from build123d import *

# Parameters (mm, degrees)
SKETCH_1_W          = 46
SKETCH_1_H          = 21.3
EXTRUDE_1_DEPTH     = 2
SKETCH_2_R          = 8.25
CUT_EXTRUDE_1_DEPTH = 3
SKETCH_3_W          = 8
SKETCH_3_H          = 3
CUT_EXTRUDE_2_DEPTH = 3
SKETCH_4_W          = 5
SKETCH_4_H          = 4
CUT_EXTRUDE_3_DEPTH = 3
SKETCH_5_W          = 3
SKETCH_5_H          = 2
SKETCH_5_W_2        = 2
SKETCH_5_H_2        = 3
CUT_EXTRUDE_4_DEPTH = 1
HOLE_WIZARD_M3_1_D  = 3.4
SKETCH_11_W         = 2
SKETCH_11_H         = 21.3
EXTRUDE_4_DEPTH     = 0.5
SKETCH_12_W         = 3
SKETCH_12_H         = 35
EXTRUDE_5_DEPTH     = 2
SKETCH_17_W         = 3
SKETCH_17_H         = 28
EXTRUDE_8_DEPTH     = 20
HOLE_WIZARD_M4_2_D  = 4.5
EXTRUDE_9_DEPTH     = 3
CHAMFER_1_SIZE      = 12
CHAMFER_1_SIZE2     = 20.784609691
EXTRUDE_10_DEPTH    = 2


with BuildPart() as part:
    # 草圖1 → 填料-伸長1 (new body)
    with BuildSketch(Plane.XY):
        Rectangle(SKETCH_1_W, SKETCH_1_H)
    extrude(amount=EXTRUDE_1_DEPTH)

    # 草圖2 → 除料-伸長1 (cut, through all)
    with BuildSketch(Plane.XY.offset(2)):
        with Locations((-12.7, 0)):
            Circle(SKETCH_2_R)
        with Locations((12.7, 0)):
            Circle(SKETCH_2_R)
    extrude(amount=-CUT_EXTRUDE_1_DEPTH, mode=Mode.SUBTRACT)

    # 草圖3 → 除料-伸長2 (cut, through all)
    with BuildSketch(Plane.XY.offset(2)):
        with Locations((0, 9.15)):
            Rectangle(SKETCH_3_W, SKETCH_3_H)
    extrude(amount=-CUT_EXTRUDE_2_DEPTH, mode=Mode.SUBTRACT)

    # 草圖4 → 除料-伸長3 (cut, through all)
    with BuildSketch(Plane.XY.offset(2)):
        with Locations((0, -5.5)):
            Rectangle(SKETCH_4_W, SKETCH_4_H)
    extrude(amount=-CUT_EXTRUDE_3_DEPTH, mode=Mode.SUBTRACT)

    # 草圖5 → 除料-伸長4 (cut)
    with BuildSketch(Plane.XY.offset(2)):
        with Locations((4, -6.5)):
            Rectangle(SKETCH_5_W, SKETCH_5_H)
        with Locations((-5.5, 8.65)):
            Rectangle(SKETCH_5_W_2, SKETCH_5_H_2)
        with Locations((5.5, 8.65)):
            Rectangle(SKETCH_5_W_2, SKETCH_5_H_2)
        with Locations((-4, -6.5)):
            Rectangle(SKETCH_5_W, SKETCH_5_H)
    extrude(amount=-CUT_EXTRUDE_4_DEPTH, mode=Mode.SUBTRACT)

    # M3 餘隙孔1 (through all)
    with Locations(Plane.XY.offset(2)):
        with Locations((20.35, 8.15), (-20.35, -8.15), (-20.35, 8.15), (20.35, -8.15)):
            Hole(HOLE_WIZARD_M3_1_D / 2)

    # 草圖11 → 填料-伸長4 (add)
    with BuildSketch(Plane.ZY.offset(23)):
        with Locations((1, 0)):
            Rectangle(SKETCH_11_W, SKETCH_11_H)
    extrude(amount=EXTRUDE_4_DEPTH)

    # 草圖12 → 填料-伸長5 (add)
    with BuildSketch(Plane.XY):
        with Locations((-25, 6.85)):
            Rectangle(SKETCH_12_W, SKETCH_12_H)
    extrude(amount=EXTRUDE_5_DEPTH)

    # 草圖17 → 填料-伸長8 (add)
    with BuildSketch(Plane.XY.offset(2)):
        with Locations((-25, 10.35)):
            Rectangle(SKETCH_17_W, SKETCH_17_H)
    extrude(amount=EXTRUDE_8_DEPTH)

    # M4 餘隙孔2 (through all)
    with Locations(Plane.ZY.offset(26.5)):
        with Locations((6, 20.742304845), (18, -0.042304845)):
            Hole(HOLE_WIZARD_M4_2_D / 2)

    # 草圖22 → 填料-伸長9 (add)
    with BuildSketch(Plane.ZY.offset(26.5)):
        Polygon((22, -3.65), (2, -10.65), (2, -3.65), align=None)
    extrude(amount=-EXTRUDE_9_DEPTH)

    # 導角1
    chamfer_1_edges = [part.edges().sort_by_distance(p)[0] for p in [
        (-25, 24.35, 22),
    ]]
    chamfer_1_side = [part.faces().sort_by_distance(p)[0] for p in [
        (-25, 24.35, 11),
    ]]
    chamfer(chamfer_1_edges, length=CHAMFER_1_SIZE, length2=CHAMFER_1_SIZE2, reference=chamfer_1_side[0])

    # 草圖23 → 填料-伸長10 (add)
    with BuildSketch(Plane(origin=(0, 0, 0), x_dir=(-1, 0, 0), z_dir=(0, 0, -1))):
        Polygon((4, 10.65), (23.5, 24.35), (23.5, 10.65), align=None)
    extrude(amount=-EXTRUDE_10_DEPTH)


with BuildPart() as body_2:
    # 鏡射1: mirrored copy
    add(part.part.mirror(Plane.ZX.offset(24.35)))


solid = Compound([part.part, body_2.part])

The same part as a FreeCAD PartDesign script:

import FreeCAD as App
import Part
import Sketcher
Q = App.Units.Quantity


def edges_at(feature, points):
    """Names of the edges that pass closest to the given points."""
    edges = feature.Shape.Edges
    near = lambda p: min(range(len(edges)), key=lambda i: edges[i].distToShape(Part.Vertex(*p))[0])
    return sorted({f"Edge{near(p) + 1}" for p in points})

doc = App.newDocument("Part")
body = doc.addObject("PartDesign::Body", "Body")

# Sketch on XY plane
sketch1 = body.newObject("Sketcher::SketchObject", "Sketch")
sketch1.AttachmentSupport = (doc.getObject("XY_Plane"), [""])
sketch1.MapMode = "FlatFace"
sketch1.addGeometry(Part.LineSegment(App.Vector(-23, 11, 0), App.Vector(-23, -11, 0)), False)
sketch1.addGeometry(Part.LineSegment(App.Vector(-23, -11, 0), App.Vector(23, -11, 0)), False)
sketch1.addGeometry(Part.LineSegment(App.Vector(23, -11, 0), App.Vector(23, 11, 0)), False)
sketch1.addGeometry(Part.LineSegment(App.Vector(23, 11, 0), App.Vector(-23, 11, 0)), False)
sketch1.addConstraint(Sketcher.Constraint("Coincident", 0, 2, 1, 1))
sketch1.addConstraint(Sketcher.Constraint("Coincident", 1, 2, 2, 1))
sketch1.addConstraint(Sketcher.Constraint("Coincident", 2, 2, 3, 1))
sketch1.addConstraint(Sketcher.Constraint("Coincident", 3, 2, 0, 1))
sketch1.addConstraint(Sketcher.Constraint("Vertical", 0))
sketch1.addConstraint(Sketcher.Constraint("Horizontal", 1))
sketch1.addConstraint(Sketcher.Constraint("Vertical", 2))
sketch1.addConstraint(Sketcher.Constraint("Horizontal", 3))
sketch1.addConstraint(Sketcher.Constraint("Symmetric", 0, 2, 2, 2, -1, 1))
sketch1.addConstraint(Sketcher.Constraint("DistanceX", 1, 1, 1, 2, Q("46 mm")))
sketch1.addConstraint(Sketcher.Constraint("DistanceY", 0, 2, 0, 1, Q("21.3 mm")))
pad1 = body.newObject("PartDesign::Pad", "Pad")
pad1.Profile = sketch1
pad1.Length = 2

# Sketch on XY plane
sketch2 = body.newObject("Sketcher::SketchObject", "Sketch001")
sketch2.AttachmentSupport = (doc.getObject("XY_Plane"), [""])
sketch2.MapMode = "FlatFace"
sketch2.AttachmentOffset = App.Placement(App.Vector(0, 0, 2), App.Rotation())
sketch2.addGeometry(Part.Circle(App.Vector(-13, 0, 0), App.Vector(0, 0, 1), 8), False)
sketch2.addGeometry(Part.Circle(App.Vector(13, 0, 0), App.Vector(0, 0, 1), 8), False)
sketch2.addConstraint(Sketcher.Constraint("Equal", 0, 1))
sketch2.addConstraint(Sketcher.Constraint("Symmetric", 0, 3, 1, 3, -1, 1))
sketch2.addConstraint(Sketcher.Constraint("PointOnObject", 0, 3, -1))
sketch2.addConstraint(Sketcher.Constraint("Diameter", 0, Q("16.5 mm")))
sketch2.addConstraint(Sketcher.Constraint("DistanceX", 0, 3, -1, 1, Q("12.7 mm")))
pocket1 = body.newObject("PartDesign::Pocket", "Pocket")
pocket1.Profile = sketch2
pocket1.Type = "ThroughAll"

# Sketch on XY plane
sketch3 = body.newObject("Sketcher::SketchObject", "Sketch002")
sketch3.AttachmentSupport = (doc.getObject("XY_Plane"), [""])
sketch3.MapMode = "FlatFace"
sketch3.AttachmentOffset = App.Placement(App.Vector(0, 0, 2), App.Rotation())
sketch3.addGeometry(Part.LineSegment(App.Vector(-4, 10.7, 0), App.Vector(-4, 7.7, 0)), False)
sketch3.addGeometry(Part.LineSegment(App.Vector(-4, 7.7, 0), App.Vector(4, 7.7, 0)), False)
sketch3.addGeometry(Part.LineSegment(App.Vector(4, 7.7, 0), App.Vector(4, 10.7, 0)), False)
sketch3.addGeometry(Part.LineSegment(App.Vector(4, 10.7, 0), App.Vector(-4, 10.7, 0)), False)
sketch3.addConstraint(Sketcher.Constraint("Coincident", 0, 2, 1, 1))
sketch3.addConstraint(Sketcher.Constraint("Coincident", 1, 2, 2, 1))
sketch3.addConstraint(Sketcher.Constraint("Coincident", 2, 2, 3, 1))
sketch3.addConstraint(Sketcher.Constraint("Coincident", 3, 2, 0, 1))
sketch3.addConstraint(Sketcher.Constraint("Vertical", 0))
sketch3.addConstraint(Sketcher.Constraint("Horizontal", 1))
sketch3.addConstraint(Sketcher.Constraint("Vertical", 2))
sketch3.addConstraint(Sketcher.Constraint("Horizontal", 3))
sketch3.addConstraint(Sketcher.Constraint("DistanceX", 1, 1, 1, 2, Q("8 mm")))
sketch3.addConstraint(Sketcher.Constraint("DistanceY", 0, 2, 0, 1, Q("3 mm")))
sketch3.addConstraint(Sketcher.Constraint("DistanceX", 0, 2, -1, 1, Q("4 mm")))
sketch3.addConstraint(Sketcher.Constraint("DistanceY", -1, 1, 0, 2, Q("7.65 mm")))
pocket2 = body.newObject("PartDesign::Pocket", "Pocket001")
pocket2.Profile = sketch3
pocket2.Type = "ThroughAll"

# Sketch on XY plane
sketch4 = body.newObject("Sketcher::SketchObject", "Sketch003")
sketch4.AttachmentSupport = (doc.getObject("XY_Plane"), [""])
sketch4.MapMode = "FlatFace"
sketch4.AttachmentOffset = App.Placement(App.Vector(0, 0, 2), App.Rotation())
sketch4.addGeometry(Part.LineSegment(App.Vector(-2.5, -3.5, 0), App.Vector(-2.5, -7.5, 0)), False)
sketch4.addGeometry(Part.LineSegment(App.Vector(-2.5, -7.5, 0), App.Vector(2.5, -7.5, 0)), False)
sketch4.addGeometry(Part.LineSegment(App.Vector(2.5, -7.5, 0), App.Vector(2.5, -3.5, 0)), False)
sketch4.addGeometry(Part.LineSegment(App.Vector(2.5, -3.5, 0), App.Vector(-2.5, -3.5, 0)), False)
sketch4.addConstraint(Sketcher.Constraint("Coincident", 0, 2, 1, 1))
sketch4.addConstraint(Sketcher.Constraint("Coincident", 1, 2, 2, 1))
sketch4.addConstraint(Sketcher.Constraint("Coincident", 2, 2, 3, 1))
sketch4.addConstraint(Sketcher.Constraint("Coincident", 3, 2, 0, 1))
sketch4.addConstraint(Sketcher.Constraint("Vertical", 0))
sketch4.addConstraint(Sketcher.Constraint("Horizontal", 1))
sketch4.addConstraint(Sketcher.Constraint("Vertical", 2))
sketch4.addConstraint(Sketcher.Constraint("Horizontal", 3))
sketch4.addConstraint(Sketcher.Constraint("DistanceX", 1, 1, 1, 2, Q("5 mm")))
sketch4.addConstraint(Sketcher.Constraint("DistanceY", 0, 2, 0, 1, Q("4 mm")))
sketch4.addConstraint(Sketcher.Constraint("DistanceX", 0, 2, -1, 1, Q("2.5 mm")))
sketch4.addConstraint(Sketcher.Constraint("DistanceY", 0, 2, -1, 1, Q("7.5 mm")))
pocket3 = body.newObject("PartDesign::Pocket", "Pocket002")
pocket3.Profile = sketch4
pocket3.Type = "ThroughAll"

# Sketch on XY plane
sketch5 = body.newObject("Sketcher::SketchObject", "Sketch004")
sketch5.AttachmentSupport = (doc.getObject("XY_Plane"), [""])
sketch5.MapMode = "FlatFace"
sketch5.AttachmentOffset = App.Placement(App.Vector(0, 0, 2), App.Rotation())
sketch5.addGeometry(Part.LineSegment(App.Vector(2.5, -5.5, 0), App.Vector(2.5, -7.5, 0)), False)
sketch5.addGeometry(Part.LineSegment(App.Vector(2.5, -7.5, 0), App.Vector(5.5, -7.5, 0)), False)
sketch5.addGeometry(Part.LineSegment(App.Vector(5.5, -7.5, 0), App.Vector(5.5, -5.5, 0)), False)
sketch5.addGeometry(Part.LineSegment(App.Vector(5.5, -5.5, 0), App.Vector(2.5, -5.5, 0)), False)
sketch5.addGeometry(Part.LineSegment(App.Vector(-6.5, 10.2, 0), App.Vector(-6.5, 7.2, 0)), False)
sketch5.addGeometry(Part.LineSegment(App.Vector(-6.5, 7.2, 0), App.Vector(-4.5, 7.2, 0)), False)
sketch5.addGeometry(Part.LineSegment(App.Vector(-4.5, 7.2, 0), App.Vector(-4.5, 10.2, 0)), False)
sketch5.addGeometry(Part.LineSegment(App.Vector(-4.5, 10.2, 0), App.Vector(-6.5, 10.2, 0)), False)
sketch5.addGeometry(Part.LineSegment(App.Vector(4.5, 10.2, 0), App.Vector(4.5, 7.2, 0)), False)
sketch5.addGeometry(Part.LineSegment(App.Vector(4.5, 7.2, 0), App.Vector(6.5, 7.2, 0)), False)
sketch5.addGeometry(Part.LineSegment(App.Vector(6.5, 7.2, 0), App.Vector(6.5, 10.2, 0)), False)
sketch5.addGeometry(Part.LineSegment(App.Vector(6.5, 10.2, 0), App.Vector(4.5, 10.2, 0)), False)
sketch5.addGeometry(Part.LineSegment(App.Vector(-5.5, -5.5, 0), App.Vector(-5.5, -7.5, 0)), False)
sketch5.addGeometry(Part.LineSegment(App.Vector(-5.5, -7.5, 0), App.Vector(-2.5, -7.5, 0)), False)
sketch5.addGeometry(Part.LineSegment(App.Vector(-2.5, -7.5, 0), App.Vector(-2.5, -5.5, 0)), False)
sketch5.addGeometry(Part.LineSegment(App.Vector(-2.5, -5.5, 0), App.Vector(-5.5, -5.5, 0)), False)
sketch5.addConstraint(Sketcher.Constraint("Coincident", 0, 2, 1, 1))
sketch5.addConstraint(Sketcher.Constraint("Coincident", 1, 2, 2, 1))
sketch5.addConstraint(Sketcher.Constraint("Coincident", 2, 2, 3, 1))
sketch5.addConstraint(Sketcher.Constraint("Coincident", 3, 2, 0, 1))
sketch5.addConstraint(Sketcher.Constraint("Coincident", 4, 2, 5, 1))
sketch5.addConstraint(Sketcher.Constraint("Coincident", 5, 2, 6, 1))
sketch5.addConstraint(Sketcher.Constraint("Coincident", 6, 2, 7, 1))
sketch5.addConstraint(Sketcher.Constraint("Coincident", 7, 2, 4, 1))
sketch5.addConstraint(Sketcher.Constraint("Coincident", 8, 2, 9, 1))
sketch5.addConstraint(Sketcher.Constraint("Coincident", 9, 2, 10, 1))
sketch5.addConstraint(Sketcher.Constraint("Coincident", 10, 2, 11, 1))
sketch5.addConstraint(Sketcher.Constraint("Coincident", 11, 2, 8, 1))
sketch5.addConstraint(Sketcher.Constraint("Coincident", 12, 2, 13, 1))
sketch5.addConstraint(Sketcher.Constraint("Coincident", 13, 2, 14, 1))
sketch5.addConstraint(Sketcher.Constraint("Coincident", 14, 2, 15, 1))
sketch5.addConstraint(Sketcher.Constraint("Coincident", 15, 2, 12, 1))
sketch5.addConstraint(Sketcher.Constraint("Vertical", 0))
sketch5.addConstraint(Sketcher.Constraint("Horizontal", 1))
sketch5.addConstraint(Sketcher.Constraint("Vertical", 2))
sketch5.addConstraint(Sketcher.Constraint("Horizontal", 3))
sketch5.addConstraint(Sketcher.Constraint("Vertical", 4))
sketch5.addConstraint(Sketcher.Constraint("Horizontal", 5))
sketch5.addConstraint(Sketcher.Constraint("Vertical", 6))
sketch5.addConstraint(Sketcher.Constraint("Horizontal", 7))
sketch5.addConstraint(Sketcher.Constraint("Vertical", 8))
sketch5.addConstraint(Sketcher.Constraint("Horizontal", 9))
sketch5.addConstraint(Sketcher.Constraint("Vertical", 10))
sketch5.addConstraint(Sketcher.Constraint("Horizontal", 11))
sketch5.addConstraint(Sketcher.Constraint("Vertical", 12))
sketch5.addConstraint(Sketcher.Constraint("Horizontal", 13))
sketch5.addConstraint(Sketcher.Constraint("Vertical", 14))
sketch5.addConstraint(Sketcher.Constraint("Horizontal", 15))
sketch5.addConstraint(Sketcher.Constraint("Symmetric", 5, 2, 8, 2, -2))
sketch5.addConstraint(Sketcher.Constraint("Symmetric", 7, 2, 10, 2, -2))
sketch5.addConstraint(Sketcher.Constraint("Symmetric", 1, 2, 12, 2, -2))
sketch5.addConstraint(Sketcher.Constraint("Symmetric", 3, 2, 14, 2, -2))
sketch5.addConstraint(Sketcher.Constraint("Equal", 11, 0))
sketch5.addConstraint(Sketcher.Constraint("Equal", 15, 4))
sketch5.addConstraint(Sketcher.Constraint("DistanceX", 1, 1, 1, 2, Q("3 mm")))
sketch5.addConstraint(Sketcher.Constraint("DistanceX", 5, 1, 5, 2, Q("2 mm")))
sketch5.addConstraint(Sketcher.Constraint("DistanceX", 4, 2, 3, 2, Q("9 mm")))
sketch5.addConstraint(Sketcher.Constraint("DistanceX", 5, 2, 8, 2, Q("9 mm")))
sketch5.addConstraint(Sketcher.Constraint("DistanceY", 0, 2, -1, 1, Q("7.5 mm")))
sketch5.addConstraint(Sketcher.Constraint("DistanceY", -1, 1, 4, 2, Q("7.15 mm")))
pocket4 = body.newObject("PartDesign::Pocket", "Pocket003")
pocket4.Profile = sketch5
pocket4.Length = 1

# Sketch on XY plane
sketch6 = body.newObject("Sketcher::SketchObject", "Sketch005")
sketch6.AttachmentSupport = (doc.getObject("XY_Plane"), [""])
sketch6.MapMode = "FlatFace"
sketch6.AttachmentOffset = App.Placement(App.Vector(0, 0, 2), App.Rotation())
sketch6.addGeometry(Part.Circle(App.Vector(20.4, 8.2, 0), App.Vector(0, 0, 1), 1.7), False)
sketch6.addGeometry(Part.Circle(App.Vector(-20.4, -8.2, 0), App.Vector(0, 0, 1), 1.7), False)
sketch6.addGeometry(Part.Circle(App.Vector(-20.4, 8.2, 0), App.Vector(0, 0, 1), 1.7), False)
sketch6.addGeometry(Part.Circle(App.Vector(20.4, -8.2, 0), App.Vector(0, 0, 1), 1.7), False)
sketch6.addConstraint(Sketcher.Constraint("Equal", 0, 1))
sketch6.addConstraint(Sketcher.Constraint("Equal", 1, 2))
sketch6.addConstraint(Sketcher.Constraint("Equal", 2, 3))
sketch6.addConstraint(Sketcher.Constraint("Symmetric", 0, 3, 1, 3, -1, 1))
sketch6.addConstraint(Sketcher.Constraint("Symmetric", 2, 3, 3, 3, -1, 1))
sketch6.addConstraint(Sketcher.Constraint("Symmetric", 0, 3, 2, 3, -2))
sketch6.addConstraint(Sketcher.Constraint("Diameter", 0, Q("3.4 mm")))
sketch6.addConstraint(Sketcher.Constraint("DistanceX", 1, 3, 0, 3, Q("40.7 mm")))
sketch6.addConstraint(Sketcher.Constraint("DistanceY", 1, 3, 0, 3, Q("16.3 mm")))
doc.recompute()
hole = body.newObject("PartDesign::Hole", "Hole")
hole.Profile = sketch6
hole.ThreadType = "None"
hole.Diameter = 3.4
hole.DepthType = "ThroughAll"

# Sketch on YZ plane
sketch7 = body.newObject("Sketcher::SketchObject", "Sketch006")
sketch7.AttachmentSupport = (doc.getObject("YZ_Plane"), [""])
sketch7.MapMode = "FlatFace"
sketch7.AttachmentOffset = App.Placement(App.Vector(0, 0, -23), App.Rotation())
sketch7.addGeometry(Part.LineSegment(App.Vector(10.7, 0, 0), App.Vector(-10.7, 0, 0)), False)
sketch7.addGeometry(Part.LineSegment(App.Vector(-10.7, 0, 0), App.Vector(-10.7, 2, 0)), False)
sketch7.addGeometry(Part.LineSegment(App.Vector(-10.7, 2, 0), App.Vector(10.7, 2, 0)), False)
sketch7.addGeometry(Part.LineSegment(App.Vector(10.7, 2, 0), App.Vector(10.7, 0, 0)), False)
sketch7.addConstraint(Sketcher.Constraint("Coincident", 0, 2, 1, 1))
sketch7.addConstraint(Sketcher.Constraint("Coincident", 1, 2, 2, 1))
sketch7.addConstraint(Sketcher.Constraint("Coincident", 2, 2, 3, 1))
sketch7.addConstraint(Sketcher.Constraint("Coincident", 3, 2, 0, 1))
sketch7.addConstraint(Sketcher.Constraint("Horizontal", 0))
sketch7.addConstraint(Sketcher.Constraint("Vertical", 1))
sketch7.addConstraint(Sketcher.Constraint("Horizontal", 2))
sketch7.addConstraint(Sketcher.Constraint("Vertical", 3))
sketch7.addConstraint(Sketcher.Constraint("Symmetric", 0, 2, 3, 2, -1, 1))
sketch7.addConstraint(Sketcher.Constraint("DistanceY", 1, 1, 1, 2, Q("2 mm")))
sketch7.addConstraint(Sketcher.Constraint("DistanceX", 0, 2, 0, 1, Q("21.3 mm")))
pad2 = body.newObject("PartDesign::Pad", "Pad001")
pad2.Profile = sketch7
pad2.Length = 0.5
pad2.Reversed = True

# Sketch on XY plane
sketch8 = body.newObject("Sketcher::SketchObject", "Sketch007")
sketch8.AttachmentSupport = (doc.getObject("XY_Plane"), [""])
sketch8.MapMode = "FlatFace"
sketch8.addGeometry(Part.LineSegment(App.Vector(-26.5, 24.4, 0), App.Vector(-26.5, -10.7, 0)), False)
sketch8.addGeometry(Part.LineSegment(App.Vector(-26.5, -10.7, 0), App.Vector(-23.5, -10.7, 0)), False)
sketch8.addGeometry(Part.LineSegment(App.Vector(-23.5, -10.7, 0), App.Vector(-23.5, 24.4, 0)), False)
sketch8.addGeometry(Part.LineSegment(App.Vector(-23.5, 24.4, 0), App.Vector(-26.5, 24.4, 0)), False)
sketch8.addConstraint(Sketcher.Constraint("Coincident", 0, 2, 1, 1))
sketch8.addConstraint(Sketcher.Constraint("Coincident", 1, 2, 2, 1))
sketch8.addConstraint(Sketcher.Constraint("Coincident", 2, 2, 3, 1))
sketch8.addConstraint(Sketcher.Constraint("Coincident", 3, 2, 0, 1))
sketch8.addConstraint(Sketcher.Constraint("Vertical", 0))
sketch8.addConstraint(Sketcher.Constraint("Horizontal", 1))
sketch8.addConstraint(Sketcher.Constraint("Vertical", 2))
sketch8.addConstraint(Sketcher.Constraint("Horizontal", 3))
sketch8.addConstraint(Sketcher.Constraint("DistanceX", 1, 1, 1, 2, Q("3 mm")))
sketch8.addConstraint(Sketcher.Constraint("DistanceY", 0, 2, 0, 1, Q("35 mm")))
sketch8.addConstraint(Sketcher.Constraint("DistanceX", 0, 2, -1, 1, Q("26.5 mm")))
sketch8.addConstraint(Sketcher.Constraint("DistanceY", 0, 2, -1, 1, Q("10.65 mm")))
pad3 = body.newObject("PartDesign::Pad", "Pad002")
pad3.Profile = sketch8
pad3.Length = 2

# Sketch on XY plane
sketch9 = body.newObject("Sketcher::SketchObject", "Sketch008")
sketch9.AttachmentSupport = (doc.getObject("XY_Plane"), [""])
sketch9.MapMode = "FlatFace"
sketch9.AttachmentOffset = App.Placement(App.Vector(0, 0, 2), App.Rotation())
sketch9.addGeometry(Part.LineSegment(App.Vector(-26.5, 24.4, 0), App.Vector(-26.5, -3.6, 0)), False)
sketch9.addGeometry(Part.LineSegment(App.Vector(-26.5, -3.6, 0), App.Vector(-23.5, -3.6, 0)), False)
sketch9.addGeometry(Part.LineSegment(App.Vector(-23.5, -3.6, 0), App.Vector(-23.5, 24.4, 0)), False)
sketch9.addGeometry(Part.LineSegment(App.Vector(-23.5, 24.4, 0), App.Vector(-26.5, 24.4, 0)), False)
sketch9.addConstraint(Sketcher.Constraint("Coincident", 0, 2, 1, 1))
sketch9.addConstraint(Sketcher.Constraint("Coincident", 1, 2, 2, 1))
sketch9.addConstraint(Sketcher.Constraint("Coincident", 2, 2, 3, 1))
sketch9.addConstraint(Sketcher.Constraint("Coincident", 3, 2, 0, 1))
sketch9.addConstraint(Sketcher.Constraint("Vertical", 0))
sketch9.addConstraint(Sketcher.Constraint("Horizontal", 1))
sketch9.addConstraint(Sketcher.Constraint("Vertical", 2))
sketch9.addConstraint(Sketcher.Constraint("Horizontal", 3))
sketch9.addConstraint(Sketcher.Constraint("DistanceX", 1, 1, 1, 2, Q("3 mm")))
sketch9.addConstraint(Sketcher.Constraint("DistanceY", 0, 2, 0, 1, Q("28 mm")))
sketch9.addConstraint(Sketcher.Constraint("DistanceX", 0, 2, -1, 1, Q("26.5 mm")))
sketch9.addConstraint(Sketcher.Constraint("DistanceY", 0, 2, -1, 1, Q("3.65 mm")))
pad4 = body.newObject("PartDesign::Pad", "Pad003")
pad4.Profile = sketch9
pad4.Length = 20

# Sketch on YZ plane
sketch10 = body.newObject("Sketcher::SketchObject", "Sketch009")
sketch10.AttachmentSupport = (doc.getObject("YZ_Plane"), [""])
sketch10.MapMode = "FlatFace"
sketch10.AttachmentOffset = App.Placement(App.Vector(0, 0, -26.5), App.Rotation())
sketch10.addGeometry(Part.Circle(App.Vector(20.7, 6, 0), App.Vector(0, 0, 1), 2.2), False)
sketch10.addGeometry(Part.Circle(App.Vector(0, 18, 0), App.Vector(0, 0, 1), 2.2), False)
sketch10.addConstraint(Sketcher.Constraint("Equal", 0, 1))
sketch10.addConstraint(Sketcher.Constraint("Diameter", 0, Q("4.5 mm")))
sketch10.addConstraint(Sketcher.Constraint("DistanceY", -1, 1, 0, 3, Q("6 mm")))
sketch10.addConstraint(Sketcher.Constraint("DistanceY", -1, 1, 1, 3, Q("18 mm")))
sketch10.addConstraint(Sketcher.Constraint("DistanceX", 1, 3, 0, 3, Q("20.78461 mm")))
sketch10.addConstraint(Sketcher.Constraint("DistanceX", -1, 1, 0, 3, Q("20.742305 mm")))
doc.recompute()
hole2 = body.newObject("PartDesign::Hole", "Hole001")
hole2.Profile = sketch10
hole2.ThreadType = "None"
hole2.Diameter = 4.5
hole2.DepthType = "ThroughAll"
hole2.Reversed = True

# Sketch on YZ plane
sketch11 = body.newObject("Sketcher::SketchObject", "Sketch010")
sketch11.AttachmentSupport = (doc.getObject("YZ_Plane"), [""])
sketch11.MapMode = "FlatFace"
sketch11.AttachmentOffset = App.Placement(App.Vector(0, 0, -26.5), App.Rotation())
sketch11.addGeometry(Part.LineSegment(App.Vector(-11, 2, 0), App.Vector(-4, 22, 0)), False)
sketch11.addGeometry(Part.LineSegment(App.Vector(-4, 22, 0), App.Vector(-4, 2, 0)), False)
sketch11.addGeometry(Part.LineSegment(App.Vector(-4, 2, 0), App.Vector(-11, 2, 0)), False)
sketch11.addConstraint(Sketcher.Constraint("Coincident", 0, 2, 1, 1))
sketch11.addConstraint(Sketcher.Constraint("Coincident", 1, 2, 2, 1))
sketch11.addConstraint(Sketcher.Constraint("Coincident", 2, 2, 0, 1))
sketch11.addConstraint(Sketcher.Constraint("Vertical", 1))
sketch11.addConstraint(Sketcher.Constraint("Horizontal", 2))
sketch11.addConstraint(Sketcher.Constraint("DistanceX", 2, 2, 2, 1, Q("7 mm")))
sketch11.addConstraint(Sketcher.Constraint("DistanceY", 1, 2, 1, 1, Q("20 mm")))
sketch11.addConstraint(Sketcher.Constraint("DistanceY", -1, 1, 0, 2, Q("22 mm")))
sketch11.addConstraint(Sketcher.Constraint("DistanceX", 0, 2, -1, 1, Q("3.65 mm")))
pad5 = body.newObject("PartDesign::Pad", "Pad004")
pad5.Profile = sketch11
pad5.Length = 3
doc.recompute()

chamfer = body.newObject("PartDesign::Chamfer", "Chamfer")
chamfer.Base = (pad5, edges_at(pad5, [(-25, 24.35, 22)]))
chamfer.ChamferType = "Two distances"
chamfer.Size = 12
chamfer.Size2 = 20.78461

# Sketch on XY plane
sketch12 = body.newObject("Sketcher::SketchObject", "Sketch011")
sketch12.AttachmentSupport = (doc.getObject("XY_Plane"), [""])
sketch12.MapMode = "FlatFace"
sketch12.addGeometry(Part.LineSegment(App.Vector(-24, 24, 0), App.Vector(-4, 11, 0)), False)
sketch12.addGeometry(Part.LineSegment(App.Vector(-4, 11, 0), App.Vector(-24, 11, 0)), False)
sketch12.addGeometry(Part.LineSegment(App.Vector(-24, 11, 0), App.Vector(-24, 24, 0)), False)
sketch12.addConstraint(Sketcher.Constraint("Coincident", 0, 2, 1, 1))
sketch12.addConstraint(Sketcher.Constraint("Coincident", 1, 2, 2, 1))
sketch12.addConstraint(Sketcher.Constraint("Coincident", 2, 2, 0, 1))
sketch12.addConstraint(Sketcher.Constraint("Horizontal", 1))
sketch12.addConstraint(Sketcher.Constraint("Vertical", 2))
sketch12.addConstraint(Sketcher.Constraint("DistanceX", 1, 2, 1, 1, Q("19.5 mm")))
sketch12.addConstraint(Sketcher.Constraint("DistanceY", 2, 1, 2, 2, Q("13.7 mm")))
sketch12.addConstraint(Sketcher.Constraint("DistanceX", 0, 2, -1, 1, Q("4 mm")))
sketch12.addConstraint(Sketcher.Constraint("DistanceY", -1, 1, 0, 2, Q("10.65 mm")))
pad6 = body.newObject("PartDesign::Pad", "Pad005")
pad6.Profile = sketch12
pad6.Length = 2
body2 = doc.addObject("PartDesign::Body", "Body001")
doc.recompute()

mirroring = doc.addObject("Part::Mirroring", "Mirroring")
mirroring.Source = body
mirroring.Base = App.Vector(0, 24.35, 0)
mirroring.Normal = App.Vector(0, 1, 0)
body2.BaseFeature = mirroring
doc.recompute()
mirroring.Visibility = False

doc.recompute()
